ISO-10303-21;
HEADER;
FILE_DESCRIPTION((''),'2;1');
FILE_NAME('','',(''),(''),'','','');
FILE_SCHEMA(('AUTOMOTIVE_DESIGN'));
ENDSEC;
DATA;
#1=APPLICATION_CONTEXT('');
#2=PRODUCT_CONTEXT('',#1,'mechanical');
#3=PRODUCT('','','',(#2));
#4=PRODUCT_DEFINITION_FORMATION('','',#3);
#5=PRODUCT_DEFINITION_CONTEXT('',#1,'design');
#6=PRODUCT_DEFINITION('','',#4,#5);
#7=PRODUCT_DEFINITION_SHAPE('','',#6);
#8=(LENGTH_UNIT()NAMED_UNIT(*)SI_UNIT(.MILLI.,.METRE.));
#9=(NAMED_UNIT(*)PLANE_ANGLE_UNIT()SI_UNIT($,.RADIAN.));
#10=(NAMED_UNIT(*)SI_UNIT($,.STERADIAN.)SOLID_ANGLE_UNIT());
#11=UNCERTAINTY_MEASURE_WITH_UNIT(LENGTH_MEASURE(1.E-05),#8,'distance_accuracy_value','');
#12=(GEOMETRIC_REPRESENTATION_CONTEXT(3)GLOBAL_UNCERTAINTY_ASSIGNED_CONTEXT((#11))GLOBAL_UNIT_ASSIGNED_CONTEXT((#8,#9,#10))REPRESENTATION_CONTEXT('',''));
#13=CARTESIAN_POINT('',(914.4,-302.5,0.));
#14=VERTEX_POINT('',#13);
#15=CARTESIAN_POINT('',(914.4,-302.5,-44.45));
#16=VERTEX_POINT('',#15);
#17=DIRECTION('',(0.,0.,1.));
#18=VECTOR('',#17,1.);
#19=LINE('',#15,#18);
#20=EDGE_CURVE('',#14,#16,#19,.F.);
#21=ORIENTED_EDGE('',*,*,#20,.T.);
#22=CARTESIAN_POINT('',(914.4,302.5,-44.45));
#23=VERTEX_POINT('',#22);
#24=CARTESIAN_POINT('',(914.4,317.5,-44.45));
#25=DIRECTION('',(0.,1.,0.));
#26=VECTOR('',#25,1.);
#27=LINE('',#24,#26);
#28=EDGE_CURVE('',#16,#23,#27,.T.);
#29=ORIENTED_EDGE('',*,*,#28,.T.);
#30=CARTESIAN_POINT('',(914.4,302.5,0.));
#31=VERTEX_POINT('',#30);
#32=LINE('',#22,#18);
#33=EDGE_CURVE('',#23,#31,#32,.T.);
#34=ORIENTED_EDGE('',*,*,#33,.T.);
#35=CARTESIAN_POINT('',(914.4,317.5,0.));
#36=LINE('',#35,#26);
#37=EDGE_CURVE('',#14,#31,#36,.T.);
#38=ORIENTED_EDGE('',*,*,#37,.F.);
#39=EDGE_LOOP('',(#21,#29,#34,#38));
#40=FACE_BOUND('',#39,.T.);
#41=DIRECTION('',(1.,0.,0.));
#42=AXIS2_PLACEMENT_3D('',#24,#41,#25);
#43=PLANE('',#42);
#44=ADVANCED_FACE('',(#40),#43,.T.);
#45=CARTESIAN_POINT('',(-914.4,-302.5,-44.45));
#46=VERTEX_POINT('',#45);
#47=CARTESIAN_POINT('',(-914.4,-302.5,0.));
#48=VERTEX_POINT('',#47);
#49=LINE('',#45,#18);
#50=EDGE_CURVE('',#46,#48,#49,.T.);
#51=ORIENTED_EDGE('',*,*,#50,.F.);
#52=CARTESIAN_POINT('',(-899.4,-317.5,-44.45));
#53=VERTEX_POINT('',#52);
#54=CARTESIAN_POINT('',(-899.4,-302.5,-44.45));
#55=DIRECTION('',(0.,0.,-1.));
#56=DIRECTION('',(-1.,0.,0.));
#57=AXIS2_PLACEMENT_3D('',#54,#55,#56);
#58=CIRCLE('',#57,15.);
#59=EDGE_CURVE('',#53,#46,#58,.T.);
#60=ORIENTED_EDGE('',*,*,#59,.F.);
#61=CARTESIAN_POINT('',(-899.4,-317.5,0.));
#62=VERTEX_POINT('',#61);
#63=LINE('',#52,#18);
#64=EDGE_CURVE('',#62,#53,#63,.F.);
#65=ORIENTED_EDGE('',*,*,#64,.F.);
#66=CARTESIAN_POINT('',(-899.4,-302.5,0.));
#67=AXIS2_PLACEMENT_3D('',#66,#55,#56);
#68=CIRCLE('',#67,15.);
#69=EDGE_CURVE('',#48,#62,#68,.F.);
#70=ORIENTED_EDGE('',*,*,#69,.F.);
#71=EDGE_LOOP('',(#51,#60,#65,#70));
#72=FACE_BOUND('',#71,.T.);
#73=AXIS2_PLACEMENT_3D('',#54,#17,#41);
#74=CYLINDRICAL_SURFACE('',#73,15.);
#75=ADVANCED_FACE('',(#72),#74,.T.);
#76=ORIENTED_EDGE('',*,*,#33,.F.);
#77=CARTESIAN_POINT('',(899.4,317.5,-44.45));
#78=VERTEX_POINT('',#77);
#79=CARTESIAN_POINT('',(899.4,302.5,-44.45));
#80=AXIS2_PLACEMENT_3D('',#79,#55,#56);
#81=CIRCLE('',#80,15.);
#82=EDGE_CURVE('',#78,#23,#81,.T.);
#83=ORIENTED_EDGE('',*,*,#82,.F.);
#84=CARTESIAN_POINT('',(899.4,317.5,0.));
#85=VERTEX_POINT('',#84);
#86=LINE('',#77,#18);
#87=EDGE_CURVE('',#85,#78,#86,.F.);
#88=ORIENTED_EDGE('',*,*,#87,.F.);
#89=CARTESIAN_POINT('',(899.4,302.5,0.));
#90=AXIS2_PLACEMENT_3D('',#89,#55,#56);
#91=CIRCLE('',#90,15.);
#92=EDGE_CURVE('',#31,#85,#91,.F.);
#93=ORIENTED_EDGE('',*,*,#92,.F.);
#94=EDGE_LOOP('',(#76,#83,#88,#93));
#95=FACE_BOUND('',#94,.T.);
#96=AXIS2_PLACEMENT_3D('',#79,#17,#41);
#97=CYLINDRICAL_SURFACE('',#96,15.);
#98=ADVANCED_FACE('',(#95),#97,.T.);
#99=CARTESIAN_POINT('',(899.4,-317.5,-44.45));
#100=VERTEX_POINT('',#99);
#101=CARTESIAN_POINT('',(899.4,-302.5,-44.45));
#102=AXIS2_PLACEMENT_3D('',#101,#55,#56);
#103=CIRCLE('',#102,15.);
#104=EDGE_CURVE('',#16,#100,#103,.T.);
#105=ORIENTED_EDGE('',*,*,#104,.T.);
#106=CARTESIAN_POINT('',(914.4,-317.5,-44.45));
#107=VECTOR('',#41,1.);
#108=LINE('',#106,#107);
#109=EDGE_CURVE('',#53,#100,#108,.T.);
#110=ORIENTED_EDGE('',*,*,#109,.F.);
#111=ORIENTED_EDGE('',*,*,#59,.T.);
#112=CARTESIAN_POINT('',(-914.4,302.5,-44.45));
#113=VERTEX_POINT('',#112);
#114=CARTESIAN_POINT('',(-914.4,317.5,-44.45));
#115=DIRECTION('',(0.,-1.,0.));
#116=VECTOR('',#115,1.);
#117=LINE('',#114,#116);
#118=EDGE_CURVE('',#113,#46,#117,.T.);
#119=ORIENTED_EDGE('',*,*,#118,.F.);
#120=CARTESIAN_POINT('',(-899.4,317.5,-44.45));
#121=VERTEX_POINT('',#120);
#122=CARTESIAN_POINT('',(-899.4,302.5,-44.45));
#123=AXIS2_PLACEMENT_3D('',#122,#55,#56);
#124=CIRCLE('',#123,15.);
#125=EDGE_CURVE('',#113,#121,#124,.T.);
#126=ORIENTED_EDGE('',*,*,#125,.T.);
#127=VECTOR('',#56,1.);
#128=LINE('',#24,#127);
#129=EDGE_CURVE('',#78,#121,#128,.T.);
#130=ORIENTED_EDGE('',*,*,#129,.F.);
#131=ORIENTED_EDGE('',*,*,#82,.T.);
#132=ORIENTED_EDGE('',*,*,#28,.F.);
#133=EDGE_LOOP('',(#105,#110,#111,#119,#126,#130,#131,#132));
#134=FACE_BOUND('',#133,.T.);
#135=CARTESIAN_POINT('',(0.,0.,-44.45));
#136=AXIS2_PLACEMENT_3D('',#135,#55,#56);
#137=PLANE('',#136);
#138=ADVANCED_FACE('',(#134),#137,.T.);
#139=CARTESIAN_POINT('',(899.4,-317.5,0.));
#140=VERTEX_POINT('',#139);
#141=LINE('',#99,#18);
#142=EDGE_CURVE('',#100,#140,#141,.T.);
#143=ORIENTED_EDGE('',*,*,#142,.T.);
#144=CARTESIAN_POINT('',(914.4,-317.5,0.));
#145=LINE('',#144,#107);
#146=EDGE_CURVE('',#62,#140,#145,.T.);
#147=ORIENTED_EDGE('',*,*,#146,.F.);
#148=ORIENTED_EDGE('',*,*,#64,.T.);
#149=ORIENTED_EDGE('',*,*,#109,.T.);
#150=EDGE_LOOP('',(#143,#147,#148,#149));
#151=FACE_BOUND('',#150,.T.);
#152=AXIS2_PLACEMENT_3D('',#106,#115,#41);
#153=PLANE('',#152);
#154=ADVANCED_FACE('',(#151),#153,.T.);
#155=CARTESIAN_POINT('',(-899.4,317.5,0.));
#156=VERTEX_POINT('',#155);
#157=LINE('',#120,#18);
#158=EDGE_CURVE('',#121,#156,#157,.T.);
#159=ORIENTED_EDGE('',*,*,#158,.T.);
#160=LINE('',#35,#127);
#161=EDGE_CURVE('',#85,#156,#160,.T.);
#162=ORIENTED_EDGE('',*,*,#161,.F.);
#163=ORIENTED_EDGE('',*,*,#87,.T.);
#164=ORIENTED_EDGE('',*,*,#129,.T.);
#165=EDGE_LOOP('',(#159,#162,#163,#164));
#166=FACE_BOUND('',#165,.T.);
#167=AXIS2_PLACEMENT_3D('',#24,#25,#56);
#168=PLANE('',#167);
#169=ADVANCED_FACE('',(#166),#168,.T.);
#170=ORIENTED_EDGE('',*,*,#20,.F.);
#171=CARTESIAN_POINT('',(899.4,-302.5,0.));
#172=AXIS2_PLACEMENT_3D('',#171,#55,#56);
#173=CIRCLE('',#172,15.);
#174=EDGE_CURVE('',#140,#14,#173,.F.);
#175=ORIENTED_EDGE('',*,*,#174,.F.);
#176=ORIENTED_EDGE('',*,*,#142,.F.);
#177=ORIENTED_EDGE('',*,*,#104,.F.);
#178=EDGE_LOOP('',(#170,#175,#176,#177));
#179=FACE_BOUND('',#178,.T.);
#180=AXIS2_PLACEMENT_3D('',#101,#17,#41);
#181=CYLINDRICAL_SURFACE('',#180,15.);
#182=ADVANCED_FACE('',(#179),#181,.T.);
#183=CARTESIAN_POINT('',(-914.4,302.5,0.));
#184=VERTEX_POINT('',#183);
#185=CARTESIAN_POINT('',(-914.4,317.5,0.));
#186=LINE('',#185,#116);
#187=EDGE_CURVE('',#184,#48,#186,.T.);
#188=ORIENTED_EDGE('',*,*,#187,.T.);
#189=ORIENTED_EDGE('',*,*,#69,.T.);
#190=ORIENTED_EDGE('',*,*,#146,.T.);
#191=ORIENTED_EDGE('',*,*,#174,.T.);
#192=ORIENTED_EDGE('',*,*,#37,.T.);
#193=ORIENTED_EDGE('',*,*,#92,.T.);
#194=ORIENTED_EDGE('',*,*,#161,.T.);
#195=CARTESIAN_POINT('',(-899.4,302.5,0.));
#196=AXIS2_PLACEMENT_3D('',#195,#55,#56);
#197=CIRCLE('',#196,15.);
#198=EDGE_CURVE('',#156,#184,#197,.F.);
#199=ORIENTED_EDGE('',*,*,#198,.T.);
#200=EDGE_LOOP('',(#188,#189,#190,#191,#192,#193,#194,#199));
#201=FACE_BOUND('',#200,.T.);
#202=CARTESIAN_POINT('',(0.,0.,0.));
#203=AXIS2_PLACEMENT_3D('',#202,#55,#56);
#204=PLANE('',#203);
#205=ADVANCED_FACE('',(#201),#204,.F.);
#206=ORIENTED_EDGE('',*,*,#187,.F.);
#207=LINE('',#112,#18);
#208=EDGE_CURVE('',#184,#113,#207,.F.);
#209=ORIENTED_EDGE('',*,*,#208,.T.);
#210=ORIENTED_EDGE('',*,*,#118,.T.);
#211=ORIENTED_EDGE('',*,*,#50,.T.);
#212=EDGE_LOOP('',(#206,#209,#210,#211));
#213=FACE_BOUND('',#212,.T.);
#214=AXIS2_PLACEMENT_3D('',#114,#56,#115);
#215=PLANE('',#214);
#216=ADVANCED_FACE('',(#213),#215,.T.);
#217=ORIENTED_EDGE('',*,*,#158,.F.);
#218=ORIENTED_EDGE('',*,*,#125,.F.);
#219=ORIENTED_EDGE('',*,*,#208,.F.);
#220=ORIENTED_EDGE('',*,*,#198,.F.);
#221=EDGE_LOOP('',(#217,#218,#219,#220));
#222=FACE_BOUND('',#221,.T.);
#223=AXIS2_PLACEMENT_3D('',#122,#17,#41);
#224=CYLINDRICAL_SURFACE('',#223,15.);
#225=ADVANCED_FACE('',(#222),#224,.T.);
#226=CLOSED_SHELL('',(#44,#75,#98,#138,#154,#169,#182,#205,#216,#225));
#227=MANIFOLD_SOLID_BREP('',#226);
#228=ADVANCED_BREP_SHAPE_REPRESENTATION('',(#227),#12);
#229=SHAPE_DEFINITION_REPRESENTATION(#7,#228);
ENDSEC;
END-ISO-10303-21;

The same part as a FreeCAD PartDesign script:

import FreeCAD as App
import Part
import Sketcher
Q = App.Units.Quantity


def edges_at(feature, points):
    """Names of the edges that pass closest to the given points."""
    edges = feature.Shape.Edges
    near = lambda p: min(range(len(edges)), key=lambda i: edges[i].distToShape(Part.Vertex(*p))[0])
    return sorted({f"Edge{near(p) + 1}" for p in points})


def add_polygon(sketch, points):
    """Adds a closed chain of lines whose ends are joined by coincident constraints."""
    first, n = sketch.GeometryCount, len(points)
    for a, b in zip(points, points[1:] + points[:1]):
        sketch.addGeometry(Part.LineSegment(App.Vector(*a, 0), App.Vector(*b, 0)), False)
    for i in range(n):
        sketch.addConstraint(Sketcher.Constraint("Coincident", first + i, 2, first + (i + 1) % n, 1))

doc = App.newDocument("Part")
params = doc.addObject("Spreadsheet::Sheet", "Params")
for row, (alias, value) in enumerate([
    ("sketch1_width", "72 in"),
    ("sketch1_height", "25 in"),
    ("pad1_length", "1.75 in"),
    ("fillet_radius", "15 mm"),
], start=1):
    params.set(f"A{row}", alias)
    params.set(f"B{row}", "=" + value)
    params.setAlias(f"B{row}", alias)

body = doc.addObject("PartDesign::Body", "Body")

# Sketch on XY plane
sketch1 = body.newObject("Sketcher::SketchObject", "Sketch")
sketch1.AttachmentSupport = (doc.getObject("XY_Plane"), [""])
sketch1.MapMode = "FlatFace"
add_polygon(sketch1, [(-914, 318), (-914, -318), (914, -318), (914, 318)])  # lines 0-3
sketch1.addConstraint([
    Sketcher.Constraint("Vertical", 0),
    Sketcher.Constraint("Horizontal", 1),
    Sketcher.Constraint("Vertical", 2),
    Sketcher.Constraint("Horizontal", 3),
    Sketcher.Constraint("Symmetric", 0, 2, 2, 2, -1, 1),
    Sketcher.Constraint("DistanceX", 1, 1, 1, 2, Q("72 in")),
    Sketcher.Constraint("DistanceY", 0, 2, 0, 1, Q("25 in")),
])
sketch1.setExpression("Constraints[9]", "Params.sketch1_width")
sketch1.setExpression("Constraints[10]", "Params.sketch1_height")
pad1 = body.newObject("PartDesign::Pad", "Pad")
pad1.Profile = sketch1
pad1.setExpression("Length", "Params.pad1_length")
pad1.Reversed = True
doc.recompute()

fillet = body.newObject("PartDesign::Fillet", "Fillet")
fillet.Base = (pad1, edges_at(pad1, [
    (-914.4, 317.5, -22.225),
    (914.4, 317.5, -22.225),
    (914.4, -317.5, -22.225),
    (-914.4, -317.5, -22.225),
]))
fillet.setExpression("Radius", "Params.fillet_radius")

doc.recompute()
